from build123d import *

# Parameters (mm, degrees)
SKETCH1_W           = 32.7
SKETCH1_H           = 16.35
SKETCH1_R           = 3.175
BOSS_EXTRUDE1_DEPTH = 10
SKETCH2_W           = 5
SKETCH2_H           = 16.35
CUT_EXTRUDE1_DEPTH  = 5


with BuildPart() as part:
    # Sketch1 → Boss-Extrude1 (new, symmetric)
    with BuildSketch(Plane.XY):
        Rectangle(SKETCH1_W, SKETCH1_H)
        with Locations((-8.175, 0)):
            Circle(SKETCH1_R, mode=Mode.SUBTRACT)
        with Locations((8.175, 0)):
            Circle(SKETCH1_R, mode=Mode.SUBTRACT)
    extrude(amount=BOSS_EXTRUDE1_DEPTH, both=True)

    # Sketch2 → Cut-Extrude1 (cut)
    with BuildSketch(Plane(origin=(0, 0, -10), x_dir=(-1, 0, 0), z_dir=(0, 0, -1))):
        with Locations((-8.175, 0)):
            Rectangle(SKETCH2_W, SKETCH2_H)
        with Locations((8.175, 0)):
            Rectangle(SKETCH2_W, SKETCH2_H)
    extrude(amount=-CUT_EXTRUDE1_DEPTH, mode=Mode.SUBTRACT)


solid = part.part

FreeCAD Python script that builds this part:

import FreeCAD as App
import Part
import Sketcher
from FreeCAD import Vector


def add_polygon(sketch, points):
    """Adds a closed chain of lines whose ends are joined by coincident constraints."""
    first, n = sketch.GeometryCount, len(points)
    for a, b in zip(points, points[1:] + points[:1]):
        sketch.addGeometry(Part.LineSegment(App.Vector(*a, 0), App.Vector(*b, 0)), False)
    for i in range(n):
        sketch.addConstraint(Sketcher.Constraint("Coincident", first + i, 2, first + (i + 1) % n, 1))

doc = App.newDocument("Part")
body = doc.addObject("PartDesign::Body", "Body")

sketch1 = body.newObject("Sketcher::SketchObject", "Sketch")
sketch1.AttachmentSupport = (doc.getObject("XY_Plane"), [""])
sketch1.MapMode = "FlatFace"
add_polygon(sketch1, [(-16.4, 8.2), (-16.4, -8.2), (16.4, -8.2), (16.4, 8.2)])
sketch1.addGeometry(Part.Circle(Vector(-8.2, 0, 0), Vector(0, 0, 1), 3.2), False)
sketch1.addGeometry(Part.Circle(Vector(8.2, 0, 0), Vector(0, 0, 1), 3.2), False)
sketch1.addConstraint(Sketcher.Constraint("Vertical", 0))
sketch1.addConstraint(Sketcher.Constraint("Horizontal", 1))
sketch1.addConstraint(Sketcher.Constraint("Vertical", 2))
sketch1.addConstraint(Sketcher.Constraint("Horizontal", 3))
sketch1.addConstraint(Sketcher.Constraint("Equal", 4, 5))
sketch1.addConstraint(Sketcher.Constraint("Symmetric", 4, 3, 5, 3, -1, 1))
sketch1.addConstraint(Sketcher.Constraint("Symmetric", 0, 2, 2, 2, -1, 1))
sketch1.addConstraint(Sketcher.Constraint("PointOnObject", 4, 3, -1))
sketch1.addConstraint(Sketcher.Constraint("Diameter", 4, 6.35))
sketch1.addConstraint(Sketcher.Constraint("DistanceX", 1, 1, 1, 2, 32.7))
sketch1.addConstraint(Sketcher.Constraint("DistanceY", 0, 2, 0, 1, 16.35))
sketch1.addConstraint(Sketcher.Constraint("DistanceX", 4, 3, 5, 3, 16.35))
pad1 = body.newObject("PartDesign::Pad", "Pad")
pad1.Profile = sketch1
pad1.Length = 20
pad1.Midplane = True

sketch2 = body.newObject("Sketcher::SketchObject", "Sketch001")
sketch2.AttachmentSupport = (doc.getObject("XY_Plane"), [""])
sketch2.MapMode = "FlatFace"
sketch2.AttachmentOffset = App.Placement(Vector(0, 0, -10), App.Rotation())
add_polygon(sketch2, [(11, 8), (11, -8), (6, -8), (6, 8)])
add_polygon(sketch2, [(-6, 8), (-6, -8), (-11, -8), (-11, 8)])
sketch2.addConstraint(Sketcher.Constraint("Vertical", 0))
sketch2.addConstraint(Sketcher.Constraint("Horizontal", 1))
sketch2.addConstraint(Sketcher.Constraint("Vertical", 2))
sketch2.addConstraint(Sketcher.Constraint("Horizontal", 3))
sketch2.addConstraint(Sketcher.Constraint("Vertical", 4))
sketch2.addConstraint(Sketcher.Constraint("Horizontal", 5))
sketch2.addConstraint(Sketcher.Constraint("Vertical", 6))
sketch2.addConstraint(Sketcher.Constraint("Horizontal", 7))
sketch2.addConstraint(Sketcher.Constraint("Symmetric", 2, 2, 4, 2, -1, 1))
sketch2.addConstraint(Sketcher.Constraint("Symmetric", 0, 2, 6, 2, -1, 1))
sketch2.addConstraint(Sketcher.Constraint("Horizontal", 1, 2, 4, 2))
sketch2.addConstraint(Sketcher.Constraint("DistanceX", 1, 2, 1, 1, 5.0))
sketch2.addConstraint(Sketcher.Constraint("DistanceY", 0, 2, 0, 1, 16.35))
sketch2.addConstraint(Sketcher.Constraint("DistanceX", 4, 2, 1, 2, 11.35))
pocket1 = body.newObject("PartDesign::Pocket", "Pocket")
pocket1.Profile = sketch2
pocket1.Length = 5
pocket1.Reversed = True

doc.recompute()
